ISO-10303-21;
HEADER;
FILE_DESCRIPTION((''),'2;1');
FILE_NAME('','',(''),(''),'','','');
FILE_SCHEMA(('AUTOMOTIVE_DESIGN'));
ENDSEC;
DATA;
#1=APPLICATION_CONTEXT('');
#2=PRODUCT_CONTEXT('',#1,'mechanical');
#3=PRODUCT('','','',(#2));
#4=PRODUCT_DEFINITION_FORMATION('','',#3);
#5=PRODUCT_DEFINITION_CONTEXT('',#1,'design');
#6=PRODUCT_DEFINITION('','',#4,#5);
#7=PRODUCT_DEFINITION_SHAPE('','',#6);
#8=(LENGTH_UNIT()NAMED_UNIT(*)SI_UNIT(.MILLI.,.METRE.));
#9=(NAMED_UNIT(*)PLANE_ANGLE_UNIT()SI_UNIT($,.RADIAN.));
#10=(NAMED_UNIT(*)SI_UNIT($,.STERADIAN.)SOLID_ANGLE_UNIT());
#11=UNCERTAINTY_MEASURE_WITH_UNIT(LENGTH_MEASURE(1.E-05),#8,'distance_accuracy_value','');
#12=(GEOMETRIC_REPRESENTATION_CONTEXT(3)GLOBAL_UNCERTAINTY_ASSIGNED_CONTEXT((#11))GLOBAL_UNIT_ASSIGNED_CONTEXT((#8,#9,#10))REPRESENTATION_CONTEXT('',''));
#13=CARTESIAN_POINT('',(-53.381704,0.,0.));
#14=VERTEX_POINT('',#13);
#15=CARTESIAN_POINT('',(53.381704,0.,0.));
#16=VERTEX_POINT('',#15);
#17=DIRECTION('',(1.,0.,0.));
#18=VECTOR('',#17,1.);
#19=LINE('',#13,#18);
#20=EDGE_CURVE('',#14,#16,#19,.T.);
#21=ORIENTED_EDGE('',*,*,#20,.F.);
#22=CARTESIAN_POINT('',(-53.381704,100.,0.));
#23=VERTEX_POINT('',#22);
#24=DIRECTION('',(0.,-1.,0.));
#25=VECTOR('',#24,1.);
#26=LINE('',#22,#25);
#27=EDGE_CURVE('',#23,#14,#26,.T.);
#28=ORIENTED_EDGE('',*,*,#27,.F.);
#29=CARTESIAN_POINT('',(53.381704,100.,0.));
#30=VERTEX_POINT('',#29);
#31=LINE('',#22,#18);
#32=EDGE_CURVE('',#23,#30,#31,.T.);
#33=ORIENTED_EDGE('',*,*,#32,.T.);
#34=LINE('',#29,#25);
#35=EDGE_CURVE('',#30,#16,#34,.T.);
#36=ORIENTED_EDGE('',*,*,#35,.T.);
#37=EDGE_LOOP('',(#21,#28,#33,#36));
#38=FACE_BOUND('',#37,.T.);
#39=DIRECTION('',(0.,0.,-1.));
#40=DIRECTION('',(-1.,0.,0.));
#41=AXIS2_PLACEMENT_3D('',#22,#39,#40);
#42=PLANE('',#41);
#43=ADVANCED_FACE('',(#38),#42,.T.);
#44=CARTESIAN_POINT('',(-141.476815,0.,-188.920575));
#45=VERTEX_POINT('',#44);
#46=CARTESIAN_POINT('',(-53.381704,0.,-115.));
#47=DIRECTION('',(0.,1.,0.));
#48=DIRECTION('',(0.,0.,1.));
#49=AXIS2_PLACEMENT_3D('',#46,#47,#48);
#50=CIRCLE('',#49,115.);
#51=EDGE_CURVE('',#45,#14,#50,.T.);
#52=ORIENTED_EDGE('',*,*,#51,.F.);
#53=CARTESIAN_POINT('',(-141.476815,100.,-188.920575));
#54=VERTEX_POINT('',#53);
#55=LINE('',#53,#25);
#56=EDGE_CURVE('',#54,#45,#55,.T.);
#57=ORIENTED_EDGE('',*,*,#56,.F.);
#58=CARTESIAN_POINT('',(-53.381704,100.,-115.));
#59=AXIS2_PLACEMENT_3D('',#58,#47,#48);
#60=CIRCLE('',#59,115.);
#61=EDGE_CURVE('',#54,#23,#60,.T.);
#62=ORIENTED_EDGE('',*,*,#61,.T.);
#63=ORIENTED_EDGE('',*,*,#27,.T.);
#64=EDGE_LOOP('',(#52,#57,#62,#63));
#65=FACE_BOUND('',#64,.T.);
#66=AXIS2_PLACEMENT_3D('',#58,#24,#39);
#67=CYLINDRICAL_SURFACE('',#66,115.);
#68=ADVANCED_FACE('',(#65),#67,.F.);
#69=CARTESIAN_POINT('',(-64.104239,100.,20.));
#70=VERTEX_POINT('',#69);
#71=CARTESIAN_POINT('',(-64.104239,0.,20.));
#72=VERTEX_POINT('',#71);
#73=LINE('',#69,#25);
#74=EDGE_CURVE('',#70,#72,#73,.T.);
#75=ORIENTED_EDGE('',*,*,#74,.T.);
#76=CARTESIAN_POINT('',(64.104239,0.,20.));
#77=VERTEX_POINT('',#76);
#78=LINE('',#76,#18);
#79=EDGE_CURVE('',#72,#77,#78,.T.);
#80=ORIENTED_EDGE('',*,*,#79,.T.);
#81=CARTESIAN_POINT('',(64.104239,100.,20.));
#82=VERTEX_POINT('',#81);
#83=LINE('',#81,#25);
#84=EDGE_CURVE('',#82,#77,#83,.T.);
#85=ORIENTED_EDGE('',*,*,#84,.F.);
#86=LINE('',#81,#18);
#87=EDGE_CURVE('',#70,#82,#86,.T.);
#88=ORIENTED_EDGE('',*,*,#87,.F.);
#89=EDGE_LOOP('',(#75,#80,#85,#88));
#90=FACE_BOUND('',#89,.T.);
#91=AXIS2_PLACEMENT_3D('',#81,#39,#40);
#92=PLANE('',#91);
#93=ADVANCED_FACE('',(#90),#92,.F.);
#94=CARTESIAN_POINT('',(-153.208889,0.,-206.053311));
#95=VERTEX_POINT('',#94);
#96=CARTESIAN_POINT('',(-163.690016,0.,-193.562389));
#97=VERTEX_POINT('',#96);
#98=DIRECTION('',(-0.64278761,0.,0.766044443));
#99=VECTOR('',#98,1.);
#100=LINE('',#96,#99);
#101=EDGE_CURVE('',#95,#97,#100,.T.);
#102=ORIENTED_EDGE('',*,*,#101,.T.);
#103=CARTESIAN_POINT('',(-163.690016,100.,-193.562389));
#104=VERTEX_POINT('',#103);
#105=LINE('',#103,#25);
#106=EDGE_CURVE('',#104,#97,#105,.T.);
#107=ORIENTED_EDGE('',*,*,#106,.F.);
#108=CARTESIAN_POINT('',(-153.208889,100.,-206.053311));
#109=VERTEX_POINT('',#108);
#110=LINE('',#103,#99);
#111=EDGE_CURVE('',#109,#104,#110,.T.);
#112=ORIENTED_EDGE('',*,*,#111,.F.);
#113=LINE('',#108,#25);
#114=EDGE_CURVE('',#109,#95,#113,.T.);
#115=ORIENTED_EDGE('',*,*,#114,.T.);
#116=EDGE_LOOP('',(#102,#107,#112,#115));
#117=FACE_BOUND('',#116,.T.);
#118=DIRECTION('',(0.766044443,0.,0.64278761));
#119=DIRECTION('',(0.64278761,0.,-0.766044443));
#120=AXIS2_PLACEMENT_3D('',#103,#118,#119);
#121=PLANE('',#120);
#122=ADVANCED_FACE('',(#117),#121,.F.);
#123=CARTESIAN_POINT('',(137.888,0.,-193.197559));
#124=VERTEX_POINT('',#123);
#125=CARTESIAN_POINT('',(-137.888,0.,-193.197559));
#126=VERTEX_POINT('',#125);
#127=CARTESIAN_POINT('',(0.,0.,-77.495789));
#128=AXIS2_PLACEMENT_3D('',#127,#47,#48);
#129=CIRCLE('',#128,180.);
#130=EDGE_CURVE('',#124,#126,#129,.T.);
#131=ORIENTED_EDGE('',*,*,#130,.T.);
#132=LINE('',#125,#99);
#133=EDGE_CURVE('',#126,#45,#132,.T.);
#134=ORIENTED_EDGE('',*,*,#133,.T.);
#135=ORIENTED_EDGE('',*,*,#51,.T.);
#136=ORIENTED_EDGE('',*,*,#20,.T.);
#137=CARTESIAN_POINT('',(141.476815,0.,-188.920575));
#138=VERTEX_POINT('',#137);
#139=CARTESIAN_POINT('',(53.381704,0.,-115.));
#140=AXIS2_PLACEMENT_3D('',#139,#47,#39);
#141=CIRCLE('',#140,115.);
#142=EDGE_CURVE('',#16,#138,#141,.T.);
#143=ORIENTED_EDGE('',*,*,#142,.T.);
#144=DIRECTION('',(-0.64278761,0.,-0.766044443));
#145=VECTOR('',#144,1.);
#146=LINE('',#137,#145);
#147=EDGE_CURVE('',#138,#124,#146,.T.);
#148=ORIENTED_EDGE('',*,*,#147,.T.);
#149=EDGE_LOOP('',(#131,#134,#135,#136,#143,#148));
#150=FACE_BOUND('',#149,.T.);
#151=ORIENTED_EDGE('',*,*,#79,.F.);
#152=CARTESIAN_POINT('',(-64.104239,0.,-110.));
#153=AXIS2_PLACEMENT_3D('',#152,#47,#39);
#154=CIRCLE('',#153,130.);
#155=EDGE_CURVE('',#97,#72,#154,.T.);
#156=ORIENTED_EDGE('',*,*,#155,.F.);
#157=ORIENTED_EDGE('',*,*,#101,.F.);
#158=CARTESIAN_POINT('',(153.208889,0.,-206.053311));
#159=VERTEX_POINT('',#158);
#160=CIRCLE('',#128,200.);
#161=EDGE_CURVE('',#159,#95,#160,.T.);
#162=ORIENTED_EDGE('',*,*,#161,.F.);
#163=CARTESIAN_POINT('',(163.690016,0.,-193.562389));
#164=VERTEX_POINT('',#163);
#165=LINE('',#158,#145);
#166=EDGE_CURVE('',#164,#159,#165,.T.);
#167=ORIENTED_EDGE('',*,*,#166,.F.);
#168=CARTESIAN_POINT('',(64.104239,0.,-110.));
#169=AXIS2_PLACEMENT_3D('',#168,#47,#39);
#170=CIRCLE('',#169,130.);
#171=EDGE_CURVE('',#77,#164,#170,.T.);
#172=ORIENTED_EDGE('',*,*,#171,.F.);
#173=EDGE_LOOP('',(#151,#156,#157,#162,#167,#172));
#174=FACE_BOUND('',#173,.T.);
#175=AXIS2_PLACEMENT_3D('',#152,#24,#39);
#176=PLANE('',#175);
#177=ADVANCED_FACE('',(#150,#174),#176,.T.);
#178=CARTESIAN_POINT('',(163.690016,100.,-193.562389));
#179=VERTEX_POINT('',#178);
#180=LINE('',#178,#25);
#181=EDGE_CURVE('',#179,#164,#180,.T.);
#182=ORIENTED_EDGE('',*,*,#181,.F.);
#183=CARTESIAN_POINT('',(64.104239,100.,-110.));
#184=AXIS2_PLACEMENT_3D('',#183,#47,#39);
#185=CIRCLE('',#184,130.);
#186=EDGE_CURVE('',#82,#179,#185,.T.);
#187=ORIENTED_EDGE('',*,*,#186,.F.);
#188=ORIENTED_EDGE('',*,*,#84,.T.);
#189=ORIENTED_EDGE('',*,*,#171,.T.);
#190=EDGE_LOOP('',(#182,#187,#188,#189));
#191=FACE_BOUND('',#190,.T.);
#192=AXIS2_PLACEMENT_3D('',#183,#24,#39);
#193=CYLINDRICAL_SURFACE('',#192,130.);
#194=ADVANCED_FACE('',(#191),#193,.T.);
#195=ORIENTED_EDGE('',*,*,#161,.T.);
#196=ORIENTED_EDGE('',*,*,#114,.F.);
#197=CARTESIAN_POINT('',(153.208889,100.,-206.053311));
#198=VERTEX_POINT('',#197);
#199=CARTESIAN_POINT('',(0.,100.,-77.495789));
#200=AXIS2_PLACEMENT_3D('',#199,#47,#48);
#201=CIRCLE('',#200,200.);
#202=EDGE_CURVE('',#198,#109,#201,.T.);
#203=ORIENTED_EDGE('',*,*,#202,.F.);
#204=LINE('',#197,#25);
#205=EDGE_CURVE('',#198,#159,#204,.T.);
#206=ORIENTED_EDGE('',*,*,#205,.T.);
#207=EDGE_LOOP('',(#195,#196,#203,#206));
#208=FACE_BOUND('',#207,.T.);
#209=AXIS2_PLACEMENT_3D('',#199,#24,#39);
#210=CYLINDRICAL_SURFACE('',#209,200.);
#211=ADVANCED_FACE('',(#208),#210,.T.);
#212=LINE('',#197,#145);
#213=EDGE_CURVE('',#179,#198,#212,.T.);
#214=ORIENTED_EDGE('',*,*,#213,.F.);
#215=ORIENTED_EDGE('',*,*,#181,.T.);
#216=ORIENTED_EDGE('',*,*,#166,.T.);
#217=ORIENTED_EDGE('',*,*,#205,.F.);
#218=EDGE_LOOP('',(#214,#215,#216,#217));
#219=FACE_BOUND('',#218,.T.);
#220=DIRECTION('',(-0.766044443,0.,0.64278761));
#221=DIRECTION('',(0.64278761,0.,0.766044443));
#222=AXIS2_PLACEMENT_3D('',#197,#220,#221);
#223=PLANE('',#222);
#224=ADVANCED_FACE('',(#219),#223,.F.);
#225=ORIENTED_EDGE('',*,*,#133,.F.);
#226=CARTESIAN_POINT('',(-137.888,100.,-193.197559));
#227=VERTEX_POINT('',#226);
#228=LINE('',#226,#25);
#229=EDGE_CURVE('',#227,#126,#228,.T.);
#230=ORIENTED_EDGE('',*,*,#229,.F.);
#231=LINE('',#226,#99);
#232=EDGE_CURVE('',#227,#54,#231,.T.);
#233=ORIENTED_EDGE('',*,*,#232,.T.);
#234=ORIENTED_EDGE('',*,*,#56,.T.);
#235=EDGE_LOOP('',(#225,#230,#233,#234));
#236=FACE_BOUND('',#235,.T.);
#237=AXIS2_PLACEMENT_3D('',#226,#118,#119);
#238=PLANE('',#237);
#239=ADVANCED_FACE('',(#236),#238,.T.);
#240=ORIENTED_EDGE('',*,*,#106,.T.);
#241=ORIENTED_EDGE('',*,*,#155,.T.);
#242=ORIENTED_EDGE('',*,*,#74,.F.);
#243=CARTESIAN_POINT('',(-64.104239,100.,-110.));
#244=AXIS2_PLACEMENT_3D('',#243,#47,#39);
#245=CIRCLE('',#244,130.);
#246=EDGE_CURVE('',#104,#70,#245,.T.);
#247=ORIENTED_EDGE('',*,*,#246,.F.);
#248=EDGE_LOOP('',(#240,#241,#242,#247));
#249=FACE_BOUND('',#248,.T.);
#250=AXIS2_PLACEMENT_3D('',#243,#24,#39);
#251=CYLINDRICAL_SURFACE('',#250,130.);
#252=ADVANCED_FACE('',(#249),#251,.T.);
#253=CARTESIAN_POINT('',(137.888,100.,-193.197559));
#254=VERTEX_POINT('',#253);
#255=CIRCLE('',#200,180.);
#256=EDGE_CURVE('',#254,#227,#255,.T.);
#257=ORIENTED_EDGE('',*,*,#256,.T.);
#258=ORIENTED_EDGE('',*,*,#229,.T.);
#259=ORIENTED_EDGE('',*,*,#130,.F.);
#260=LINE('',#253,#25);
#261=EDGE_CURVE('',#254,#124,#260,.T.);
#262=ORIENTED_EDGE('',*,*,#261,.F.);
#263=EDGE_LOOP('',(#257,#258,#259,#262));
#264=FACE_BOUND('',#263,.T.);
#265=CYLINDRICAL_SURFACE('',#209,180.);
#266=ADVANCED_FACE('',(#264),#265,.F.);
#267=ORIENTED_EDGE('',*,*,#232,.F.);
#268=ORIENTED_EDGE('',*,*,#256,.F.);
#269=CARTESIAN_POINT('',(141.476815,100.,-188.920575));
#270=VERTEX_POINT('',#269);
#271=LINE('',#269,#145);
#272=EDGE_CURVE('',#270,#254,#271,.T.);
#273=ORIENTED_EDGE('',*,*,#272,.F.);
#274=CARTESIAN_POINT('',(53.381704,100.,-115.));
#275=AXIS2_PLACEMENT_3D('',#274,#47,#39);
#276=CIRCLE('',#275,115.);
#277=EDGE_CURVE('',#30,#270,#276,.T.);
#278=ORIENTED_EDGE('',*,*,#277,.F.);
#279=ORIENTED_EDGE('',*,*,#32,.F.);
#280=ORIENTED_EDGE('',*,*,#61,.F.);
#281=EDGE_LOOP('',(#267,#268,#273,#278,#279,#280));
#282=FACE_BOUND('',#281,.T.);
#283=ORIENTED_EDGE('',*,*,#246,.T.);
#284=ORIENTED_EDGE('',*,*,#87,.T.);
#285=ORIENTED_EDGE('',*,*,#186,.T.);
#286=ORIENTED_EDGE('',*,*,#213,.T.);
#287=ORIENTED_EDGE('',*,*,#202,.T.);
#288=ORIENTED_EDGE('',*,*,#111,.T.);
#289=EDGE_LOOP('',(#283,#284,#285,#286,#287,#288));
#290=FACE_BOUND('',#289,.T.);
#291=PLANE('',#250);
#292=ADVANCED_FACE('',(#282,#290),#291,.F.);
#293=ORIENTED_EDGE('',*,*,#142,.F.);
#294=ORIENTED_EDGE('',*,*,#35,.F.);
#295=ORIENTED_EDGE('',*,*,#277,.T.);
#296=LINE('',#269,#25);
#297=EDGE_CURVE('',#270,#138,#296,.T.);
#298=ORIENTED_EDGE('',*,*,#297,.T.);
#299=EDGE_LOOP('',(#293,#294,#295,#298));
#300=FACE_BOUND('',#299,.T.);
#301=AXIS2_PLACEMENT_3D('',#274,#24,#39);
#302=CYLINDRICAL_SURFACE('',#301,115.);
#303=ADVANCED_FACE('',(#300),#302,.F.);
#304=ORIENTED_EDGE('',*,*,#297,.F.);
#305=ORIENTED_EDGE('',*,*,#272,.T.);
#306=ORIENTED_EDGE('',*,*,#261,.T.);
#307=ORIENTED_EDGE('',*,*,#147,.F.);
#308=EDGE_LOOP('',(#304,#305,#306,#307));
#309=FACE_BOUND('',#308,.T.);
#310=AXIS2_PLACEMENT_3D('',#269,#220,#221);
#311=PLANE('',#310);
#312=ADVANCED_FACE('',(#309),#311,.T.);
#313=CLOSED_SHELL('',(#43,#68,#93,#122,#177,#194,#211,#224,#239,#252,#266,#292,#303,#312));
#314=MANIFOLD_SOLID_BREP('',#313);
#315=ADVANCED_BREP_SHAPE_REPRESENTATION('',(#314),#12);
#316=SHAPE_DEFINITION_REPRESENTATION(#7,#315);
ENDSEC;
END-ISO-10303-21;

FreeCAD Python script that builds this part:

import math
import FreeCAD as App
import Part
import Sketcher
Q = App.Units.Quantity

doc = App.newDocument("Part")
body = doc.addObject("PartDesign::Body", "Body")

# Sketch on XZ plane
sketch1 = body.newObject("Sketcher::SketchObject", "Sketch")
sketch1.AttachmentSupport = (doc.getObject("XZ_Plane"), [""])
sketch1.MapMode = "FlatFace"
sketch1.addGeometry(Part.LineSegment(App.Vector(163.690016, -193.562389, 0), App.Vector(153.208889, -206.053311, 0)), False)
sketch1.addGeometry(Part.ArcOfCircle(Part.Circle(App.Vector(0, -77.495789, 0), App.Vector(0, 0, 1), 200), math.radians(-140), math.radians(-40)), False)
sketch1.addGeometry(Part.LineSegment(App.Vector(-153.208889, -206.053311, 0), App.Vector(-163.690016, -193.562389, 0)), False)
sketch1.addGeometry(Part.ArcOfCircle(Part.Circle(App.Vector(-64.104239, -110, 0), App.Vector(0, 0, 1), 130), math.radians(90), math.radians(220)), False)
sketch1.addGeometry(Part.LineSegment(App.Vector(-64.104239, 20, 0), App.Vector(64.104239, 20, 0)), False)
sketch1.addGeometry(Part.ArcOfCircle(Part.Circle(App.Vector(64.104239, -110, 0), App.Vector(0, 0, 1), 130), math.radians(-40), math.radians(90)), False)
sketch1.addGeometry(Part.ArcOfCircle(Part.Circle(App.Vector(53.381704, -115, 0), App.Vector(0, 0, 1), 115), math.radians(-40), math.radians(90)), False)
sketch1.addGeometry(Part.LineSegment(App.Vector(53.381704, 0, 0), App.Vector(-53.381704, 0, 0)), False)
sketch1.addGeometry(Part.ArcOfCircle(Part.Circle(App.Vector(-53.381704, -115, 0), App.Vector(0, 0, 1), 115), math.radians(90), math.radians(220)), False)
sketch1.addGeometry(Part.LineSegment(App.Vector(-141.476815, -188.920575, 0), App.Vector(-137.888, -193.197559, 0)), False)
sketch1.addGeometry(Part.ArcOfCircle(Part.Circle(App.Vector(0, -77.495789, 0), App.Vector(0, 0, 1), 180), math.radians(-140), math.radians(-40)), False)
sketch1.addGeometry(Part.LineSegment(App.Vector(137.888, -193.197559, 0), App.Vector(141.476815, -188.920575, 0)), False)
sketch1.addConstraint(Sketcher.Constraint("Tangent", 0, 2, 1, 2))
sketch1.addConstraint(Sketcher.Constraint("Tangent", 1, 1, 2, 1))
sketch1.addConstraint(Sketcher.Constraint("Tangent", 2, 2, 3, 2))
sketch1.addConstraint(Sketcher.Constraint("Tangent", 3, 1, 4, 1))
sketch1.addConstraint(Sketcher.Constraint("Tangent", 4, 2, 5, 2))
sketch1.addConstraint(Sketcher.Constraint("Tangent", 5, 1, 0, 1))
sketch1.addConstraint(Sketcher.Constraint("Tangent", 6, 2, 7, 1))
sketch1.addConstraint(Sketcher.Constraint("Tangent", 7, 2, 8, 1))
sketch1.addConstraint(Sketcher.Constraint("Tangent", 8, 2, 9, 1))
sketch1.addConstraint(Sketcher.Constraint("Tangent", 9, 2, 10, 1))
sketch1.addConstraint(Sketcher.Constraint("Tangent", 10, 2, 11, 1))
sketch1.addConstraint(Sketcher.Constraint("Tangent", 11, 2, 6, 1))
sketch1.addConstraint(Sketcher.Constraint("Horizontal", 4))
sketch1.addConstraint(Sketcher.Constraint("Horizontal", 7))
sketch1.addConstraint(Sketcher.Constraint("Coincident", 10, 3, 1, 3))
sketch1.addConstraint(Sketcher.Constraint("Equal", 3, 5))
sketch1.addConstraint(Sketcher.Constraint("Equal", 6, 8))
sketch1.addConstraint(Sketcher.Constraint("Symmetric", 6, 2, 7, 2, -1, 1))
sketch1.addConstraint(Sketcher.Constraint("PointOnObject", 1, 3, -2))
sketch1.addConstraint(Sketcher.Constraint("Parallel", 2, 9))
sketch1.addConstraint(Sketcher.Constraint("Parallel", 0, 11))
sketch1.addConstraint(Sketcher.Constraint("Radius", 1, Q("200 mm")))
sketch1.addConstraint(Sketcher.Constraint("Radius", 3, Q("130 mm")))
sketch1.addConstraint(Sketcher.Constraint("Radius", 6, Q("115 mm")))
sketch1.addConstraint(Sketcher.Constraint("Radius", 10, Q("180 mm")))
sketch1.addConstraint(Sketcher.Constraint("Angle", 0, Q("-130 deg")))
sketch1.addConstraint(Sketcher.Constraint("DistanceY", 3, 3, -1, 1, Q("110 mm")))
sketch1.addConstraint(Sketcher.Constraint("DistanceX", 7, 2, 7, 1, Q("106.763408 mm")))
pad1 = body.newObject("PartDesign::Pad", "Pad")
pad1.Profile = sketch1
pad1.Length = 100
pad1.Reversed = True

doc.recompute()
